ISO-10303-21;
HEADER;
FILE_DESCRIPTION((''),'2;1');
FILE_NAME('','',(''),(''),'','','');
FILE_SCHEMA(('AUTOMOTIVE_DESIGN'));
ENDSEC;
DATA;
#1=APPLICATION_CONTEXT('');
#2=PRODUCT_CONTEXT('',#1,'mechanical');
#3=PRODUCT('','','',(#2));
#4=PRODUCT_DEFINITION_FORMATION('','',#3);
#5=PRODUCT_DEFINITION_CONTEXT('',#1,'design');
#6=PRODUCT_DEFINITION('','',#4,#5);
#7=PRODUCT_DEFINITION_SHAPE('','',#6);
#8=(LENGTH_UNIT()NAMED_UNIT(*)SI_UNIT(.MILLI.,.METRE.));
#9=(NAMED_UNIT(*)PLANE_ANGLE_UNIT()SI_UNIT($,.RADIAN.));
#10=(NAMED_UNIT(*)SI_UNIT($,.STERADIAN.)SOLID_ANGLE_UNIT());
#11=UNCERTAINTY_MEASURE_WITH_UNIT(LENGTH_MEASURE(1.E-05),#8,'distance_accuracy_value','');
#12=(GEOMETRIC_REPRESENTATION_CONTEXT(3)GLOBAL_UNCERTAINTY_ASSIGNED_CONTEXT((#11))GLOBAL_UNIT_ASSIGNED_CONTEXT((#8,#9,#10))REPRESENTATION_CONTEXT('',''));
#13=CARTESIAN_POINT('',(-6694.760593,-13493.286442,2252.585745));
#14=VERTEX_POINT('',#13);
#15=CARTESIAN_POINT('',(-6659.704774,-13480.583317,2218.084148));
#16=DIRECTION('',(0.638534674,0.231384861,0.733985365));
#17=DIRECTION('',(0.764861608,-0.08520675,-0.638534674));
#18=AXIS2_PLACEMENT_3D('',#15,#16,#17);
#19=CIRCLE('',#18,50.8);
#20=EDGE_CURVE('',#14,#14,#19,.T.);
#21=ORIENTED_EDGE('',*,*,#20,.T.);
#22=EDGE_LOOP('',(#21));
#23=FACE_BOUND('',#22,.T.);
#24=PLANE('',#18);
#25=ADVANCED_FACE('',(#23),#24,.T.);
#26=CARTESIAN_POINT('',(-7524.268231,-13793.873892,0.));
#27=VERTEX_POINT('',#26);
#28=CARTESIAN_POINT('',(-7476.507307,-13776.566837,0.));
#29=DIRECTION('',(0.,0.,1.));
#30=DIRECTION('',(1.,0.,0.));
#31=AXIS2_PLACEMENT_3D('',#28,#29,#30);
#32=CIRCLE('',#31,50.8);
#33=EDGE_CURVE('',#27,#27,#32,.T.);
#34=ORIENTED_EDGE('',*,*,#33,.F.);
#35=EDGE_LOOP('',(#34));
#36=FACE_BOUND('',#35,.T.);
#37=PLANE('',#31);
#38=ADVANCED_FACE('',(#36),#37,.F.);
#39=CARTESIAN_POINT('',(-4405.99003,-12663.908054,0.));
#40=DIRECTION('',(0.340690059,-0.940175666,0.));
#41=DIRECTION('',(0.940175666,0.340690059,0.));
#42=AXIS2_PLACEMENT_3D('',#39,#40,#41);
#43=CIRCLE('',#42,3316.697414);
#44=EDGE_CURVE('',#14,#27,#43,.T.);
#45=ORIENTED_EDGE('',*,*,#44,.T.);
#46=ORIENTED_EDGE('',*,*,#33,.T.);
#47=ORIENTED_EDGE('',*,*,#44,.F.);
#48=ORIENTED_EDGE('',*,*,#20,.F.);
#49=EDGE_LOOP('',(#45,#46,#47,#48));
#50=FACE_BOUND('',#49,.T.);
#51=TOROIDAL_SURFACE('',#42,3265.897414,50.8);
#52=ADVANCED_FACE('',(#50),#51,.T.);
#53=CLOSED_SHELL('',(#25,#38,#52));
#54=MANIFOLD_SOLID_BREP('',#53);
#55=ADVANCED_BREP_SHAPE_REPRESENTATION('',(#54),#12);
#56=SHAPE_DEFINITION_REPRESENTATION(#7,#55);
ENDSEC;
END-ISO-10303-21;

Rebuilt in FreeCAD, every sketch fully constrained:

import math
import FreeCAD as App
import Part
import Sketcher
Q = App.Units.Quantity

doc = App.newDocument("Part")
body = doc.addObject("PartDesign::Body", "Body")

# Sketch on XY plane
sketch1 = doc.addObject("Sketcher::SketchObject", "Sketch")
body.addObject(sketch1)
sketch1.AttachmentSupport = (doc.XY_Plane, [""])
sketch1.MapMode = "FlatFace"
sketch1.addGeometry(Part.Circle(App.Vector(-7476.507307, -13776.566837, 0), App.Vector(0, 0, 1), 50.8), False)
sketch1.addConstraint([
    Sketcher.Constraint("Diameter", 0, Q("4 in")),
    Sketcher.Constraint("DistanceX", 0, 3, -1, 1, Q("7476.507307 mm")),
    Sketcher.Constraint("DistanceY", 0, 3, -1, 1, Q("13776.566837 mm")),
])

# Sketch on an angled plane
sketch2 = doc.addObject("Sketcher::SketchObject", "Sketch001")
body.addObject(sketch2)
sketch2.Placement = App.Placement(App.Vector(3544.955423, -9782.735764, 0), App.Rotation(App.Vector(-0.940175666, -0.340690059, 0), App.Vector(0, 0, 0.999999999), App.Vector(-0.340690059, 0.940175666, 0), "ZXY"))
sketch2.addGeometry(Part.ArcOfCircle(Part.Circle(App.Vector(8456.872191, 0, 0), App.Vector(0, 0, 1), 3265.897414), math.radians(0), math.radians(42.77845)), False)
sketch2.addConstraint([
    Sketcher.Constraint("PointOnObject", 0, 3, -1),
    Sketcher.Constraint("PointOnObject", 0, 1, -1),
    Sketcher.Constraint("Radius", 0, Q("3265.897414 mm")),
    Sketcher.Constraint("DistanceX", -1, 1, 0, 3, Q("8456.872191 mm")),
    Sketcher.Constraint("DistanceX", 0, 2, 0, 1, Q("868.776509 mm")),
])
doc.recompute()

additivepipe = doc.addObject("PartDesign::AdditivePipe", "AdditivePipe")
body.addObject(additivepipe)
additivepipe.Profile = sketch1
additivepipe.Spine = (sketch2, ["Edge1"])

doc.recompute()
